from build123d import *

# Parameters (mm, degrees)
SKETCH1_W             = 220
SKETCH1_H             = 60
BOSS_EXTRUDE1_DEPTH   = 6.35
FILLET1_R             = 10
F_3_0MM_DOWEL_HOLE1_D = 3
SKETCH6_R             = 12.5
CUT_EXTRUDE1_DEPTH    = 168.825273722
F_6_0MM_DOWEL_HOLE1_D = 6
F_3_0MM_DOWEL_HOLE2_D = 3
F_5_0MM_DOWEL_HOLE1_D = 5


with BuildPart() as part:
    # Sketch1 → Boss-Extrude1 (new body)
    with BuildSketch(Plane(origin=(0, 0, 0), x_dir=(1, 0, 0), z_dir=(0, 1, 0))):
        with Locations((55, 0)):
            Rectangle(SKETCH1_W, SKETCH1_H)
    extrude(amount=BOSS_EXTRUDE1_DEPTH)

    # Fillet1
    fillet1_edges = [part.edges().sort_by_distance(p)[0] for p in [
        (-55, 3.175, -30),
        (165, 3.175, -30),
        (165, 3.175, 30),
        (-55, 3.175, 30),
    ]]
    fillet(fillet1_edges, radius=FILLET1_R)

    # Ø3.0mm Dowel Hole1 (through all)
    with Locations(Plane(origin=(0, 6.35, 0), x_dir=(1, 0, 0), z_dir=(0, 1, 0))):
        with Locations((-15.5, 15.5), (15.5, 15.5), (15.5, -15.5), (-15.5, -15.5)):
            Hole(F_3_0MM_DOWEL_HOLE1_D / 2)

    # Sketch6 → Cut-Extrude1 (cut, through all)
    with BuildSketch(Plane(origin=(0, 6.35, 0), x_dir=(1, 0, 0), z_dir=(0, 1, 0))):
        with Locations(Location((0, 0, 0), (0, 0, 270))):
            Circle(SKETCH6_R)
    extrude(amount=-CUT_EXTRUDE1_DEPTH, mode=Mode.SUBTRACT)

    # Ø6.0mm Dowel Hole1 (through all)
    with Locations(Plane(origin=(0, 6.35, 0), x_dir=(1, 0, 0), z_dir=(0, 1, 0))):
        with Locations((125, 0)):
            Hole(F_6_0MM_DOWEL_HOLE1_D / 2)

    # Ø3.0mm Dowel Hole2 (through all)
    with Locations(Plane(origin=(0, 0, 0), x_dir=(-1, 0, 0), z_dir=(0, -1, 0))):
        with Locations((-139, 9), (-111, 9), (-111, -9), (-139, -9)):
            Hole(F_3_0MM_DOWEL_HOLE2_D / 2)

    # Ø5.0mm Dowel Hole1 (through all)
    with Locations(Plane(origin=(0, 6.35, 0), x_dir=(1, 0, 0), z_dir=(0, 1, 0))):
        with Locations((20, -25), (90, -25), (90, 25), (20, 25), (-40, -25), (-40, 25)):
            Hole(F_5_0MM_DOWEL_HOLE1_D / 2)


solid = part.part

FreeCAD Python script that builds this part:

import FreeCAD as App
import Part
import Sketcher
from FreeCAD import Vector


def edges_at(feature, points):
    """Names of the edges that pass closest to the given points."""
    edges = feature.Shape.Edges
    near = lambda p: min(range(len(edges)), key=lambda i: edges[i].distToShape(Part.Vertex(*p))[0])
    return sorted({f"Edge{near(p) + 1}" for p in points})

doc = App.newDocument("Part")
params = doc.addObject("Spreadsheet::Sheet", "Params")
for row, (alias, value) in enumerate([
    ("sketch1_width", "220 mm"),
    ("sketch1_height", "60 mm"),
    ("pad1_length", "6.35 mm"),
    ("fillet_radius", "10 mm"),
    ("sketch2_diameter", "3 mm"),
    ("hole_diameter", "3 mm"),
    ("sketch3_diameter", "25 mm"),
    ("sketch4_diameter", "6 mm"),
    ("hole2_diameter", "6 mm"),
    ("sketch5_diameter", "3 mm"),
    ("hole3_diameter", "3 mm"),
    ("sketch6_diameter", "5 mm"),
    ("hole4_diameter", "5 mm"),
], start=1):
    params.set(f"A{row}", alias)
    params.set(f"B{row}", "=" + value)
    params.setAlias(f"B{row}", alias)

body = doc.addObject("PartDesign::Body", "Body")

# Sketch on XZ plane
sketch1 = body.newObject("Sketcher::SketchObject", "Sketch")
sketch1.AttachmentSupport = (doc.getObject("XZ_Plane"), [""])
sketch1.MapMode = "FlatFace"
sketch1.addGeometry([
    Part.LineSegment(Vector(-55, -30, 0), Vector(-55, 30, 0)),
    Part.LineSegment(Vector(-55, 30, 0), Vector(165, 30, 0)),
    Part.LineSegment(Vector(165, 30, 0), Vector(165, -30, 0)),
    Part.LineSegment(Vector(165, -30, 0), Vector(-55, -30, 0)),
], False)
sketch1.addConstraint([
    Sketcher.Constraint("Coincident", 0, 2, 1, 1),
    Sketcher.Constraint("Coincident", 1, 2, 2, 1),
    Sketcher.Constraint("Coincident", 2, 2, 3, 1),
    Sketcher.Constraint("Coincident", 3, 2, 0, 1),
    Sketcher.Constraint("Vertical", 0),
    Sketcher.Constraint("Horizontal", 1),
    Sketcher.Constraint("Vertical", 2),
    Sketcher.Constraint("Horizontal", 3),
    Sketcher.Constraint("DistanceX", 1, 1, 1, 2, 220.0),
    Sketcher.Constraint("DistanceY", 0, 1, 0, 2, 60.0),
    Sketcher.Constraint("DistanceX", 0, 2, -1, 1, 55.0),
    Sketcher.Constraint("DistanceY", -1, 1, 0, 2, 30.0),
])
sketch1.setExpression("Constraints[8]", "Params.sketch1_width")
sketch1.setExpression("Constraints[9]", "Params.sketch1_height")
pad1 = body.newObject("PartDesign::Pad", "Pad")
pad1.Profile = sketch1
pad1.setExpression("Length", "Params.pad1_length")
pad1.Reversed = True
doc.recompute()

fillet = body.newObject("PartDesign::Fillet", "Fillet")
fillet.Base = (pad1, edges_at(pad1, [
    (-55, 3.175, -30),
    (165, 3.175, -30),
    (165, 3.175, 30),
    (-55, 3.175, 30),
]))
fillet.setExpression("Radius", "Params.fillet_radius")

# Sketch on XZ plane
sketch2 = body.newObject("Sketcher::SketchObject", "Sketch001")
sketch2.AttachmentSupport = (doc.getObject("XZ_Plane"), [""])
sketch2.MapMode = "FlatFace"
sketch2.AttachmentOffset = App.Placement(Vector(0, 0, -6.35), App.Rotation())
sketch2.addGeometry([
    Part.Circle(Vector(-15.5, -15.5, 0), Vector(0, 0, 1), 1.5),
    Part.Circle(Vector(15.5, -15.5, 0), Vector(0, 0, 1), 1.5),
    Part.Circle(Vector(15.5, 15.5, 0), Vector(0, 0, 1), 1.5),
    Part.Circle(Vector(-15.5, 15.5, 0), Vector(0, 0, 1), 1.5),
], False)
sketch2.addConstraint([
    Sketcher.Constraint("Equal", 0, 1),
    Sketcher.Constraint("Equal", 1, 2),
    Sketcher.Constraint("Equal", 2, 3),
    Sketcher.Constraint("Symmetric", 0, 3, 2, 3, -1, 1),
    Sketcher.Constraint("Symmetric", 1, 3, 3, 3, -1, 1),
    Sketcher.Constraint("Symmetric", 0, 3, 1, 3, -2),
    Sketcher.Constraint("Diameter", 0, 3.0),
    Sketcher.Constraint("DistanceX", 0, 3, 1, 3, 31.0),
    Sketcher.Constraint("DistanceY", 1, 3, 2, 3, 31.0),
])
sketch2.setExpression("Constraints[6]", "Params.sketch2_diameter")
doc.recompute()
hole = body.newObject("PartDesign::Hole", "Hole")
hole.Profile = sketch2
hole.ThreadType = "None"
hole.setExpression("Diameter", "Params.hole_diameter")
hole.DepthType = "ThroughAll"
hole.Reversed = True

# Sketch on XZ plane
sketch3 = body.newObject("Sketcher::SketchObject", "Sketch002")
sketch3.AttachmentSupport = (doc.getObject("XZ_Plane"), [""])
sketch3.MapMode = "FlatFace"
sketch3.AttachmentOffset = App.Placement(Vector(0, 0, -6.35), App.Rotation())
sketch3.addGeometry(Part.Circle(Vector(0, 0, 0), Vector(0, 0, 1), 12.5), False)
sketch3.addConstraint([
    Sketcher.Constraint("Coincident", 0, 3, -1, 1),
    Sketcher.Constraint("Diameter", 0, 25.0),
])
sketch3.setExpression("Constraints[1]", "Params.sketch3_diameter")
pocket1 = body.newObject("PartDesign::Pocket", "Pocket")
pocket1.Profile = sketch3
pocket1.Type = "ThroughAll"
pocket1.Reversed = True

# Sketch on XZ plane
sketch4 = body.newObject("Sketcher::SketchObject", "Sketch003")
sketch4.AttachmentSupport = (doc.getObject("XZ_Plane"), [""])
sketch4.MapMode = "FlatFace"
sketch4.AttachmentOffset = App.Placement(Vector(0, 0, -6.35), App.Rotation())
sketch4.addGeometry(Part.Circle(Vector(125, 0, 0), Vector(0, 0, 1), 3), False)
sketch4.addConstraint([
    Sketcher.Constraint("PointOnObject", 0, 3, -1),
    Sketcher.Constraint("Diameter", 0, 6.0),
    Sketcher.Constraint("DistanceX", -1, 1, 0, 3, 125.0),
])
sketch4.setExpression("Constraints[1]", "Params.sketch4_diameter")
doc.recompute()
hole2 = body.newObject("PartDesign::Hole", "Hole001")
hole2.Profile = sketch4
hole2.ThreadType = "None"
hole2.setExpression("Diameter", "Params.hole2_diameter")
hole2.DepthType = "ThroughAll"
hole2.Reversed = True

# Sketch on XZ plane
sketch5 = body.newObject("Sketcher::SketchObject", "Sketch004")
sketch5.AttachmentSupport = (doc.getObject("XZ_Plane"), [""])
sketch5.MapMode = "FlatFace"
sketch5.addGeometry([
    Part.Circle(Vector(139, -9, 0), Vector(0, 0, 1), 1.5),
    Part.Circle(Vector(111, -9, 0), Vector(0, 0, 1), 1.5),
    Part.Circle(Vector(111, 9, 0), Vector(0, 0, 1), 1.5),
    Part.Circle(Vector(139, 9, 0), Vector(0, 0, 1), 1.5),
], False)
sketch5.addConstraint([
    Sketcher.Constraint("Equal", 0, 1),
    Sketcher.Constraint("Equal", 1, 2),
    Sketcher.Constraint("Equal", 2, 3),
    Sketcher.Constraint("Symmetric", 1, 3, 2, 3, -1),
    Sketcher.Constraint("Symmetric", 0, 3, 3, 3, -1),
    Sketcher.Constraint("Horizontal", 0, 3, 1, 3),
    Sketcher.Constraint("Diameter", 0, 3.0),
    Sketcher.Constraint("DistanceX", -1, 1, 0, 3, 139.0),
    Sketcher.Constraint("DistanceY", 0, 3, -1, 1, 9.0),
    Sketcher.Constraint("DistanceX", -1, 1, 1, 3, 111.0),
])
sketch5.setExpression("Constraints[6]", "Params.sketch5_diameter")
doc.recompute()
hole3 = body.newObject("PartDesign::Hole", "Hole002")
hole3.Profile = sketch5
hole3.ThreadType = "None"
hole3.setExpression("Diameter", "Params.hole3_diameter")
hole3.DepthType = "ThroughAll"

# Sketch on XZ plane
sketch6 = body.newObject("Sketcher::SketchObject", "Sketch005")
sketch6.AttachmentSupport = (doc.getObject("XZ_Plane"), [""])
sketch6.MapMode = "FlatFace"
sketch6.AttachmentOffset = App.Placement(Vector(0, 0, -6.35), App.Rotation())
sketch6.addGeometry([
    Part.Circle(Vector(20, 25, 0), Vector(0, 0, 1), 2.5),  # 0
    Part.Circle(Vector(90, 25, 0), Vector(0, 0, 1), 2.5),  # 1
    Part.Circle(Vector(90, -25, 0), Vector(0, 0, 1), 2.5),  # 2
    Part.Circle(Vector(20, -25, 0), Vector(0, 0, 1), 2.5),  # 3
    Part.Circle(Vector(-40, 25, 0), Vector(0, 0, 1), 2.5),  # 4
    Part.Circle(Vector(-40, -25, 0), Vector(0, 0, 1), 2.5),  # 5
], False)
sketch6.addConstraint([
    Sketcher.Constraint("Equal", 0, 1),
    Sketcher.Constraint("Equal", 1, 2),
    Sketcher.Constraint("Equal", 2, 3),
    Sketcher.Constraint("Equal", 3, 4),
    Sketcher.Constraint("Equal", 4, 5),
    Sketcher.Constraint("Symmetric", 1, 3, 2, 3, -1),
    Sketcher.Constraint("Symmetric", 0, 3, 3, 3, -1),
    Sketcher.Constraint("Symmetric", 4, 3, 5, 3, -1),
    Sketcher.Constraint("Horizontal", 0, 3, 1, 3),
    Sketcher.Constraint("Horizontal", 1, 3, 4, 3),
    Sketcher.Constraint("Diameter", 0, 5.0),
    Sketcher.Constraint("DistanceX", -1, 1, 0, 3, 20.0),
    Sketcher.Constraint("DistanceY", -1, 1, 0, 3, 25.0),
    Sketcher.Constraint("DistanceX", -1, 1, 1, 3, 90.0),
    Sketcher.Constraint("DistanceX", 4, 3, -1, 1, 40.0),
])
sketch6.setExpression("Constraints[10]", "Params.sketch6_diameter")
doc.recompute()
hole4 = body.newObject("PartDesign::Hole", "Hole003")
hole4.Profile = sketch6
hole4.ThreadType = "None"
hole4.setExpression("Diameter", "Params.hole4_diameter")
hole4.DepthType = "ThroughAll"
hole4.Reversed = True

doc.recompute()
